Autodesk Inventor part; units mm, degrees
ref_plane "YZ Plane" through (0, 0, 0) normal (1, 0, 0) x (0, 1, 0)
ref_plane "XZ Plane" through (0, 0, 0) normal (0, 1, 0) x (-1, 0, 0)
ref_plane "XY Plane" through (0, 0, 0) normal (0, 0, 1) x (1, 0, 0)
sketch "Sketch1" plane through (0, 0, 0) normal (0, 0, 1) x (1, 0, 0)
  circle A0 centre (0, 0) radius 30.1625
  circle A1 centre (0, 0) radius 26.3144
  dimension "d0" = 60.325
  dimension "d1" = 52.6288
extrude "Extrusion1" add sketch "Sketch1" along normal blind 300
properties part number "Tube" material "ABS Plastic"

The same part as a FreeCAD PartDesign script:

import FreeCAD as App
import Part
import Sketcher

V = App.Vector
Q = App.Units.Quantity

doc = App.newDocument("Part")
body = doc.addObject("PartDesign::Body", "Body")

# Sketch on XY plane
sketch1 = body.newObject("Sketcher::SketchObject", "Sketch")
sketch1.AttachmentSupport = (doc.getObject("XY_Plane"), [""])
sketch1.MapMode = "FlatFace"
sketch1.addGeometry([
    Part.Circle(V(0, 0, 0), V(0, 0, 1), 30),
    Part.Circle(V(0, 0, 0), V(0, 0, 1), 26),
], False)
sketch1.addConstraint([
    Sketcher.Constraint("Coincident", 0, 3, -1, 1),
    Sketcher.Constraint("Coincident", 1, 3, -1, 1),
    Sketcher.Constraint("Diameter", 0, Q("2.375 in")),
    Sketcher.Constraint("Diameter", 1, Q("2.072 in")),
])
pad1 = body.newObject("PartDesign::Pad", "Pad")
pad1.Profile = sketch1
pad1.Length = 300

doc.recompute()
